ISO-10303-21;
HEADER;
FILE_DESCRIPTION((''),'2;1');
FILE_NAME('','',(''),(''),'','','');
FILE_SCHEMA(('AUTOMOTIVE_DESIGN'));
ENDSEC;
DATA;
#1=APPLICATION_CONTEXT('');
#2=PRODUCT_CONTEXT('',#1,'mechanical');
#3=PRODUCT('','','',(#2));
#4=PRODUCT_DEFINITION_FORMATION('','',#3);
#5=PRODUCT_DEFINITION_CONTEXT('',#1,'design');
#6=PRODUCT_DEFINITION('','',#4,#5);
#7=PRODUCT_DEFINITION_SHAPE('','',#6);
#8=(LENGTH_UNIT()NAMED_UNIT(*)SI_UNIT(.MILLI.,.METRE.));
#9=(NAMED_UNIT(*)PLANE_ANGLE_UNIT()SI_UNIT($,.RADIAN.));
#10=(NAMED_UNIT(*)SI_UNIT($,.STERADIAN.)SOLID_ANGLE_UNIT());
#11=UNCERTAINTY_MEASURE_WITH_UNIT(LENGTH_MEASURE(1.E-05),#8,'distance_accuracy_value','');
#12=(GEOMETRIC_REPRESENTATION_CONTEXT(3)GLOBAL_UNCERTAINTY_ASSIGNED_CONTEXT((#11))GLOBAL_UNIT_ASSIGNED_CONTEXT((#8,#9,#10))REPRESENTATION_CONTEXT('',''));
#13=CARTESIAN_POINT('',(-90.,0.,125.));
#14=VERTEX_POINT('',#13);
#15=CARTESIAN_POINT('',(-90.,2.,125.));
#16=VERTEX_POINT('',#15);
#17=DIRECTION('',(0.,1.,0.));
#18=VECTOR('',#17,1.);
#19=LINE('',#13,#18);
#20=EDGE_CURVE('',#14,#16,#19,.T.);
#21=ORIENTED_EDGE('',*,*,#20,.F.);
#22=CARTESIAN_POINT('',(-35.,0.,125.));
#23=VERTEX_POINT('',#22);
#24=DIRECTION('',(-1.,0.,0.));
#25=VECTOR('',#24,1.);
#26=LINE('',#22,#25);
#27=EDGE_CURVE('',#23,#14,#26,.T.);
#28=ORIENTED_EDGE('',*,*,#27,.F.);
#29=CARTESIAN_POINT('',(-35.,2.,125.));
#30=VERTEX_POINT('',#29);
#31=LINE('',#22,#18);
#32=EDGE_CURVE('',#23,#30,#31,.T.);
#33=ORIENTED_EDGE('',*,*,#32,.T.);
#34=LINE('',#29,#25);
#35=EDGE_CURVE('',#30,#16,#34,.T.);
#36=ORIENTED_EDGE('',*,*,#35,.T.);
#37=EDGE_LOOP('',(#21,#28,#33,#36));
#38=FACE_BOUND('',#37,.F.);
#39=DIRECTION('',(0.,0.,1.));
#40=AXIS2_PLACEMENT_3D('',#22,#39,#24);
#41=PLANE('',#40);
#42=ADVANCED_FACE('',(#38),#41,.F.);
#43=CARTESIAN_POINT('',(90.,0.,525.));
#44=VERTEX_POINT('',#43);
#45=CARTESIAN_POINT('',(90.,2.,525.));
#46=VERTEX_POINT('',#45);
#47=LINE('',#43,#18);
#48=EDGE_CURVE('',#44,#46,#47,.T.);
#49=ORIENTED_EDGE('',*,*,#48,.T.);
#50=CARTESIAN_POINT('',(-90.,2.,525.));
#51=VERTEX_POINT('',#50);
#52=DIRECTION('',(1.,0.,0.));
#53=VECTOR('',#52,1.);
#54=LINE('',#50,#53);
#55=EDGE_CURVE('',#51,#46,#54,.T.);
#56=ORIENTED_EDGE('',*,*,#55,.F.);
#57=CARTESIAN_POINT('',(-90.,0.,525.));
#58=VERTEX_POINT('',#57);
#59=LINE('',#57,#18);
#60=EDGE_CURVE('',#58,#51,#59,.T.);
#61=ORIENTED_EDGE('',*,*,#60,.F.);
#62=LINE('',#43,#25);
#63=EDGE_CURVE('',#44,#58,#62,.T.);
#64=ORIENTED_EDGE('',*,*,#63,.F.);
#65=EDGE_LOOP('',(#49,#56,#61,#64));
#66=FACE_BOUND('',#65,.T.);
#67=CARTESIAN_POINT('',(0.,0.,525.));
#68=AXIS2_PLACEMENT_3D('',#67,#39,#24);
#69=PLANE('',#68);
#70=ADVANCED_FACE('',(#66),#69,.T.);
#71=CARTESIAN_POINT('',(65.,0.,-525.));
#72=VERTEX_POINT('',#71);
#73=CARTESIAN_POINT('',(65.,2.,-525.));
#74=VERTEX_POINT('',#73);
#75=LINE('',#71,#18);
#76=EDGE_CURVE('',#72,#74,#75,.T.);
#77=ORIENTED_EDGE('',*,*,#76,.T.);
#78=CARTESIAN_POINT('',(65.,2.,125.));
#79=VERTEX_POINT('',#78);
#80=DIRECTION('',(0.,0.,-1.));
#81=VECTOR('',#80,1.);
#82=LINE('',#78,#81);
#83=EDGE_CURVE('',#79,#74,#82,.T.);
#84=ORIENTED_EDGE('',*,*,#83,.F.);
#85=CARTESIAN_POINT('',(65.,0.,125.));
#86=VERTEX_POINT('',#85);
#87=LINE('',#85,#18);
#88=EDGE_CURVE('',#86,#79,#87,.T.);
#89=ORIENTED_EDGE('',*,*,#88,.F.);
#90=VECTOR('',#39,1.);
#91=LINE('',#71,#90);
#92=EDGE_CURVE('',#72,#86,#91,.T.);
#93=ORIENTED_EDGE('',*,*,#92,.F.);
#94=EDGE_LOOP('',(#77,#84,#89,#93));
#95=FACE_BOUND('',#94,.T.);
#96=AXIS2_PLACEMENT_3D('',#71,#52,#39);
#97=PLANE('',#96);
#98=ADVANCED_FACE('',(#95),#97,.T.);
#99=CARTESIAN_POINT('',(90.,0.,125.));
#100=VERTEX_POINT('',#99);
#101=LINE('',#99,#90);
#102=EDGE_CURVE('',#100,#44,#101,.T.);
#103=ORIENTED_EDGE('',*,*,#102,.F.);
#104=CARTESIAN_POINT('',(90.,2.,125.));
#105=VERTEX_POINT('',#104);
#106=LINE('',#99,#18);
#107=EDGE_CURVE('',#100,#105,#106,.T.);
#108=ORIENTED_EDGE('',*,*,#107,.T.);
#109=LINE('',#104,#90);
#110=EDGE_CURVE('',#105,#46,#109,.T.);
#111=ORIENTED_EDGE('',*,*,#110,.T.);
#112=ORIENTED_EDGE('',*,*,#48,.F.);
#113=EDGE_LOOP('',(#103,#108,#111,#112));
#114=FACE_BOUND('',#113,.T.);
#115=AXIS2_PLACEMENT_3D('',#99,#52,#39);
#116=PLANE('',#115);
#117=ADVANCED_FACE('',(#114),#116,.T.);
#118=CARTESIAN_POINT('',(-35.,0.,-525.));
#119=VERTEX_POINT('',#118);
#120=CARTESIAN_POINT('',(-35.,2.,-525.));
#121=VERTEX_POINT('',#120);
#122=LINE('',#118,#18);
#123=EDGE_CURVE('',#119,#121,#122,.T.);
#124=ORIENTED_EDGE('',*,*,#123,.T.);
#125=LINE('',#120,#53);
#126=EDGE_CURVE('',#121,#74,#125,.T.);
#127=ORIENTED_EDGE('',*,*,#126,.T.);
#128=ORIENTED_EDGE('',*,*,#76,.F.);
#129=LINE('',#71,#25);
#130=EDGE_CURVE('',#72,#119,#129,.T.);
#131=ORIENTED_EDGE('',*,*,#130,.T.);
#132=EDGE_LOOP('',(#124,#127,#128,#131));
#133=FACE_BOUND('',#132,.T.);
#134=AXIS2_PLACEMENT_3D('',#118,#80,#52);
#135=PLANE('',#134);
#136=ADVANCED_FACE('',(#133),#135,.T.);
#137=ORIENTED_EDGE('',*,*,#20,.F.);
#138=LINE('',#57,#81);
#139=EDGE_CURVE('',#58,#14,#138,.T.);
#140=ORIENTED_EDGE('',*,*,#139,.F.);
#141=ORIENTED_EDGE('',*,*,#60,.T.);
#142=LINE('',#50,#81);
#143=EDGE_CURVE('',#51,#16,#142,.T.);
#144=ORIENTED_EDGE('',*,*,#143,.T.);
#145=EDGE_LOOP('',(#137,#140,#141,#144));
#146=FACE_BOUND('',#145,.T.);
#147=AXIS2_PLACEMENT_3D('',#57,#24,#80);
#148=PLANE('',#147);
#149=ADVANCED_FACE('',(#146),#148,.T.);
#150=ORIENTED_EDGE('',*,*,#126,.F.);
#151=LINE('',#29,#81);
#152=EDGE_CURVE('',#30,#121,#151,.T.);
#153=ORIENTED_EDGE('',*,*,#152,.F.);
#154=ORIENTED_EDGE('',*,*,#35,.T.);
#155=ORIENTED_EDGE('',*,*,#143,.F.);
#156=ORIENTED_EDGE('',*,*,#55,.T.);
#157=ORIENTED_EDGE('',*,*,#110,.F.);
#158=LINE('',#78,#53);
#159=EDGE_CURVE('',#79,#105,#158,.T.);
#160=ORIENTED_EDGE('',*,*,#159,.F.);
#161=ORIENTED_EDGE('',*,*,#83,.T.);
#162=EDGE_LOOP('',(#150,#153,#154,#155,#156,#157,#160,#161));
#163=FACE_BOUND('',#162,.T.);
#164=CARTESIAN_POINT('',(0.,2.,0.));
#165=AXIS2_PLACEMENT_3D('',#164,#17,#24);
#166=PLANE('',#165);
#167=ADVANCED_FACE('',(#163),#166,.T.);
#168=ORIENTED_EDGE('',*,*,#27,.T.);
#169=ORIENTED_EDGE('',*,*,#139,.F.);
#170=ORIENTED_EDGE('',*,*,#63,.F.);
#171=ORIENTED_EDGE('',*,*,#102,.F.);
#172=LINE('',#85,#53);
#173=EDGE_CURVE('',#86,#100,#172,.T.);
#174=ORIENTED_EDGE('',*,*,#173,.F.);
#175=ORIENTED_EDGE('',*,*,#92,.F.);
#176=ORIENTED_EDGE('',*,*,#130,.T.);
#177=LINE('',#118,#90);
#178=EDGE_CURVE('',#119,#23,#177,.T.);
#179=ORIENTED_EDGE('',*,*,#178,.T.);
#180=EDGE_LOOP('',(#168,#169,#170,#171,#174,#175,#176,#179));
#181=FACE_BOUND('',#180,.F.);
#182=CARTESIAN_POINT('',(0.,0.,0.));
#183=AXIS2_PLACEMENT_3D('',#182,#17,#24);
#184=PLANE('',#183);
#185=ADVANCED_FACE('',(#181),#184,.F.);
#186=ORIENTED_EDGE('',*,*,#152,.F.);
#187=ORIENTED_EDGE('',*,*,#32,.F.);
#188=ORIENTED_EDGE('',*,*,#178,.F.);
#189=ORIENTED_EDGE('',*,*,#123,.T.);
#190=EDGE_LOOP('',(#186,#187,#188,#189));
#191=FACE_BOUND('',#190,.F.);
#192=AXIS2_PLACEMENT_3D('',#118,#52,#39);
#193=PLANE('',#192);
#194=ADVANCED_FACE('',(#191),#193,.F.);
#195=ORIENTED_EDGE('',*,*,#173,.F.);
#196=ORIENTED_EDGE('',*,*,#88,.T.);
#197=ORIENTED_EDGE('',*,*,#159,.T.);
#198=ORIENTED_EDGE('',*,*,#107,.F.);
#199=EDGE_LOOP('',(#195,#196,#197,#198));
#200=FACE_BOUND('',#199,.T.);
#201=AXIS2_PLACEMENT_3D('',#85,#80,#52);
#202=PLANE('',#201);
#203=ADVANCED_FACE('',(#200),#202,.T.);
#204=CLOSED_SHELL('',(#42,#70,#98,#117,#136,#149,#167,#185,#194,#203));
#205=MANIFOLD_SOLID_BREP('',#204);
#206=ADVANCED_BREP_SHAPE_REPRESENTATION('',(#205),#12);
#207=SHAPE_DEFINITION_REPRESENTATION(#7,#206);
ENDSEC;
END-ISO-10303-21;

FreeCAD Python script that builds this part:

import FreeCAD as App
import Part
import Sketcher

V = App.Vector

doc = App.newDocument("Part")
params = doc.addObject("Spreadsheet::Sheet", "Params")
for row, (alias, value) in enumerate([
    ("sketch1_width", "55 mm"),
    ("sketch1_width2", "180 mm"),
    ("sketch1_height", "650 mm"),
    ("pad1_length", "2 mm"),
], start=1):
    params.set(f"A{row}", alias)
    params.set(f"B{row}", "=" + value)
    params.setAlias(f"B{row}", alias)

body = doc.addObject("PartDesign::Body", "Body")

sketch1 = doc.addObject("Sketcher::SketchObject", "Sketch")
body.addObject(sketch1)
sketch1.AttachmentSupport = (doc.XZ_Plane, [""])
sketch1.MapMode = "FlatFace"
sketch1.addGeometry(Part.LineSegment(V(-35, -525, 0), V(-35, 125, 0)), False)
sketch1.addGeometry(Part.LineSegment(V(-35, 125, 0), V(-90, 125, 0)), False)
sketch1.addGeometry(Part.LineSegment(V(-90, 125, 0), V(-90, 525, 0)), False)
sketch1.addGeometry(Part.LineSegment(V(-90, 525, 0), V(90, 525, 0)), False)
sketch1.addGeometry(Part.LineSegment(V(90, 525, 0), V(90, 125, 0)), False)
sketch1.addGeometry(Part.LineSegment(V(90, 125, 0), V(65, 125, 0)), False)
sketch1.addGeometry(Part.LineSegment(V(65, 125, 0), V(65, -525, 0)), False)
sketch1.addGeometry(Part.LineSegment(V(65, -525, 0), V(-35, -525, 0)), False)
sketch1.addConstraint(Sketcher.Constraint("Coincident", 0, 2, 1, 1))
sketch1.addConstraint(Sketcher.Constraint("Coincident", 1, 2, 2, 1))
sketch1.addConstraint(Sketcher.Constraint("Coincident", 2, 2, 3, 1))
sketch1.addConstraint(Sketcher.Constraint("Coincident", 3, 2, 4, 1))
sketch1.addConstraint(Sketcher.Constraint("Coincident", 4, 2, 5, 1))
sketch1.addConstraint(Sketcher.Constraint("Coincident", 5, 2, 6, 1))
sketch1.addConstraint(Sketcher.Constraint("Coincident", 6, 2, 7, 1))
sketch1.addConstraint(Sketcher.Constraint("Coincident", 7, 2, 0, 1))
sketch1.addConstraint(Sketcher.Constraint("Vertical", 0))
sketch1.addConstraint(Sketcher.Constraint("Horizontal", 1))
sketch1.addConstraint(Sketcher.Constraint("Vertical", 2))
sketch1.addConstraint(Sketcher.Constraint("Horizontal", 3))
sketch1.addConstraint(Sketcher.Constraint("Vertical", 4))
sketch1.addConstraint(Sketcher.Constraint("Horizontal", 5))
sketch1.addConstraint(Sketcher.Constraint("Vertical", 6))
sketch1.addConstraint(Sketcher.Constraint("Horizontal", 7))
sketch1.addConstraint(Sketcher.Constraint("Symmetric", 1, 2, 4, 2, -2))
sketch1.addConstraint(Sketcher.Constraint("DistanceX", 1, 2, 1, 1, 55.0))
sketch1.addConstraint(Sketcher.Constraint("DistanceX", 3, 1, 3, 2, 180.0))
sketch1.addConstraint(Sketcher.Constraint("DistanceY", 0, 1, 0, 2, 650.0))
sketch1.addConstraint(Sketcher.Constraint("DistanceX", 1, 2, 5, 2, 155.0))
sketch1.addConstraint(Sketcher.Constraint("DistanceY", 6, 2, 3, 2, 1050.0))
sketch1.addConstraint(Sketcher.Constraint("DistanceY", -1, 1, 0, 2, 125.0))
sketch1.setExpression("Constraints[17]", "Params.sketch1_width")
sketch1.setExpression("Constraints[18]", "Params.sketch1_width2")
sketch1.setExpression("Constraints[19]", "Params.sketch1_height")
pad1 = doc.addObject("PartDesign::Pad", "Pad")
body.addObject(pad1)
pad1.Profile = sketch1
pad1.setExpression("Length", "Params.pad1_length")
pad1.Reversed = True

doc.recompute()
